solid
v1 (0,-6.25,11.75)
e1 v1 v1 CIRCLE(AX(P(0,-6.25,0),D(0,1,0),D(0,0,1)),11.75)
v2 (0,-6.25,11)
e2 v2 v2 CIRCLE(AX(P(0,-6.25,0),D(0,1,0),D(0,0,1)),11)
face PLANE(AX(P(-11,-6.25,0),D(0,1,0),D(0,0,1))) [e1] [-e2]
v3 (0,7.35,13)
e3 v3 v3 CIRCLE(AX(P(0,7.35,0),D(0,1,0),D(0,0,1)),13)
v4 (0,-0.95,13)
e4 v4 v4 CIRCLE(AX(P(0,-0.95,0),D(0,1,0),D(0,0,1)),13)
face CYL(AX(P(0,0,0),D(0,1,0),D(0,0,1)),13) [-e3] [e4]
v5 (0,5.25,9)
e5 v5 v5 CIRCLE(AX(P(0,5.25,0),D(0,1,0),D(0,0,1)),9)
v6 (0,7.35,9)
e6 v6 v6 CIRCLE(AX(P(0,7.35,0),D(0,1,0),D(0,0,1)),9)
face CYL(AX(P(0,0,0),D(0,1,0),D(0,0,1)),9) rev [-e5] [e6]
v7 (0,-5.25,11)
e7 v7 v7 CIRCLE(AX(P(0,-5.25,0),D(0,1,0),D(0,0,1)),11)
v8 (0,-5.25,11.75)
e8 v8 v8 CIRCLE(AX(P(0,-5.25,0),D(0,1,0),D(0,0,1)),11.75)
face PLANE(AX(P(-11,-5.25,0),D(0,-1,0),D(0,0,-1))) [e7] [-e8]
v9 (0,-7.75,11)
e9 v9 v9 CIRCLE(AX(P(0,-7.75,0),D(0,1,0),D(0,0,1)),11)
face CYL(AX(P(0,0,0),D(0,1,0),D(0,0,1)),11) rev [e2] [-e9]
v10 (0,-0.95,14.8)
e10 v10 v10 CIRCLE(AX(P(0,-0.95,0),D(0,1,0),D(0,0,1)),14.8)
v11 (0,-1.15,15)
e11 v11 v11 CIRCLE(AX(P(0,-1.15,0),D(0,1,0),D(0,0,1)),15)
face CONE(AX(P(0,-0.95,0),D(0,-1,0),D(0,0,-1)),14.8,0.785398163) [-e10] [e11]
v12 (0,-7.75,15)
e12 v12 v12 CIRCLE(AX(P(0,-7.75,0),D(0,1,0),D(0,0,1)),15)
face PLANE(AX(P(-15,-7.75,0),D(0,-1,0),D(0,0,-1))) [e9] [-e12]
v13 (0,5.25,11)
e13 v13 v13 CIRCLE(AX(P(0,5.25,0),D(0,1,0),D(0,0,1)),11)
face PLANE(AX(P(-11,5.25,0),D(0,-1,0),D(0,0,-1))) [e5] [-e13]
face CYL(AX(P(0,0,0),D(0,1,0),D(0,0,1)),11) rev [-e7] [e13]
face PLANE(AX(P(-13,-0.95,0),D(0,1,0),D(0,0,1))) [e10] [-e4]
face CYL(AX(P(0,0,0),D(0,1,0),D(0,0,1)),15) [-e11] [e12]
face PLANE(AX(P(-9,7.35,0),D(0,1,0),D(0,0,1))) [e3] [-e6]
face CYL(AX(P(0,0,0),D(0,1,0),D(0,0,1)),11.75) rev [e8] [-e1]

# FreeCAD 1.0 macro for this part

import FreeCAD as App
import Part
import Sketcher
Q = App.Units.Quantity

doc = App.newDocument("Part")
body = doc.addObject("PartDesign::Body", "Body")

# Sketch on XY plane
sketch1 = body.newObject("Sketcher::SketchObject", "Sketch")
sketch1.AttachmentSupport = (doc.getObject("XY_Plane"), [""])
sketch1.MapMode = "FlatFace"
sketch1.addGeometry([
    Part.LineSegment(App.Vector(-9, 7.35, 0), App.Vector(-13, 7.35, 0)),  # 0
    Part.LineSegment(App.Vector(-13, 7.35, 0), App.Vector(-13, -0.95, 0)),  # 1
    Part.LineSegment(App.Vector(-13, -0.95, 0), App.Vector(-14.8, -0.95, 0)),  # 2
    Part.LineSegment(App.Vector(-14.8, -0.95, 0), App.Vector(-15, -1.15, 0)),  # 3
    Part.LineSegment(App.Vector(-15, -1.15, 0), App.Vector(-15, -7.75, 0)),  # 4
    Part.LineSegment(App.Vector(-15, -7.75, 0), App.Vector(-11, -7.75, 0)),  # 5
    Part.LineSegment(App.Vector(-11, -7.75, 0), App.Vector(-11, -6.25, 0)),  # 6
    Part.LineSegment(App.Vector(-11, -6.25, 0), App.Vector(-11.75, -6.25, 0)),  # 7
    Part.LineSegment(App.Vector(-11.75, -6.25, 0), App.Vector(-11.75, -5.25, 0)),  # 8
    Part.LineSegment(App.Vector(-11.75, -5.25, 0), App.Vector(-11, -5.25, 0)),  # 9
    Part.LineSegment(App.Vector(-11, -5.25, 0), App.Vector(-11, 5.25, 0)),  # 10
    Part.LineSegment(App.Vector(-11, 5.25, 0), App.Vector(-9, 5.25, 0)),  # 11
    Part.LineSegment(App.Vector(-9, 5.25, 0), App.Vector(-9, 7.35, 0)),  # 12
], False)
sketch1.addConstraint([
    Sketcher.Constraint("Coincident", 0, 2, 1, 1),
    Sketcher.Constraint("Coincident", 1, 2, 2, 1),
    Sketcher.Constraint("Coincident", 2, 2, 3, 1),
    Sketcher.Constraint("Coincident", 3, 2, 4, 1),
    Sketcher.Constraint("Coincident", 4, 2, 5, 1),
    Sketcher.Constraint("Coincident", 5, 2, 6, 1),
    Sketcher.Constraint("Coincident", 6, 2, 7, 1),
    Sketcher.Constraint("Coincident", 7, 2, 8, 1),
    Sketcher.Constraint("Coincident", 8, 2, 9, 1),
    Sketcher.Constraint("Coincident", 9, 2, 10, 1),
    Sketcher.Constraint("Coincident", 10, 2, 11, 1),
    Sketcher.Constraint("Coincident", 11, 2, 12, 1),
    Sketcher.Constraint("Coincident", 12, 2, 0, 1),
    Sketcher.Constraint("Horizontal", 0),
    Sketcher.Constraint("Vertical", 1),
    Sketcher.Constraint("Horizontal", 2),
    Sketcher.Constraint("Vertical", 4),
    Sketcher.Constraint("Horizontal", 5),
    Sketcher.Constraint("Vertical", 6),
    Sketcher.Constraint("Horizontal", 7),
    Sketcher.Constraint("Vertical", 8),
    Sketcher.Constraint("Horizontal", 9),
    Sketcher.Constraint("Vertical", 10),
    Sketcher.Constraint("Horizontal", 11),
    Sketcher.Constraint("Vertical", 12),
    Sketcher.Constraint("Vertical", 6, 2, 9, 2),
    Sketcher.Constraint("Equal", 0, 5),
    Sketcher.Constraint("DistanceX", 0, 2, 0, 1, 4.0),
    Sketcher.Constraint("DistanceX", 11, 1, 11, 2, 2.0),
    Sketcher.Constraint("DistanceY", 8, 1, 8, 2, 1.0),
    Sketcher.Constraint("Angle", 3, Q("-135 deg")),
    Sketcher.Constraint("DistanceX", 2, 2, 2, 1, 1.8),
    Sketcher.Constraint("DistanceY", 1, 2, 1, 1, 8.3),
    Sketcher.Constraint("DistanceY", 4, 2, 4, 1, 6.6),
    Sketcher.Constraint("DistanceY", 6, 1, 6, 2, 1.5),
    Sketcher.Constraint("DistanceY", 10, 1, 10, 2, 10.5),
    Sketcher.Constraint("DistanceX", 0, 2, -1, 1, 13.0),
    Sketcher.Constraint("DistanceX", 7, 2, 7, 1, 0.75),
    Sketcher.Constraint("DistanceY", -1, 1, 0, 2, 7.35),
])
revolution = body.newObject("PartDesign::Revolution", "Revolution")
revolution.Profile = sketch1
revolution.ReferenceAxis = (sketch1, ["V_Axis"])
revolution.Angle = 360

doc.recompute()
